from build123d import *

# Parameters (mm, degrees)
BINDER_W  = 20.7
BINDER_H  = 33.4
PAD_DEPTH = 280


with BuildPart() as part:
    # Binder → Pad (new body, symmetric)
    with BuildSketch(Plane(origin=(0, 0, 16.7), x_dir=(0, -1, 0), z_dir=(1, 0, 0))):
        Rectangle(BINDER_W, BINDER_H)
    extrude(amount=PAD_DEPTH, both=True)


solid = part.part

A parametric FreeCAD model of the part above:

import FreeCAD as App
import Part
import Sketcher
from FreeCAD import Vector
Q = App.Units.Quantity


def add_polygon(sketch, points):
    """Adds a closed chain of lines whose ends are joined by coincident constraints."""
    first, n = sketch.GeometryCount, len(points)
    for a, b in zip(points, points[1:] + points[:1]):
        sketch.addGeometry(Part.LineSegment(App.Vector(*a, 0), App.Vector(*b, 0)), False)
    for i in range(n):
        sketch.addConstraint(Sketcher.Constraint("Coincident", first + i, 2, first + (i + 1) % n, 1))

doc = App.newDocument("Part")
body = doc.addObject("PartDesign::Body", "Body")

sketch1 = body.newObject("Sketcher::SketchObject", "Sketch")
sketch1.AttachmentSupport = (doc.getObject("YZ_Plane"), [""])
sketch1.MapMode = "FlatFace"
add_polygon(sketch1, [(10, 0), (10, 33), (-10, 33), (-10, 0)])
sketch1.addConstraint([
    Sketcher.Constraint("Vertical", 0),
    Sketcher.Constraint("Horizontal", 1),
    Sketcher.Constraint("Vertical", 2),
    Sketcher.Constraint("Horizontal", 3),
    Sketcher.Constraint("Symmetric", 2, 2, 3, 2, -1, 1),
    Sketcher.Constraint("DistanceX", 1, 2, 1, 1, Q("20.7 mm")),
    Sketcher.Constraint("DistanceY", 0, 1, 0, 2, Q("33.4 mm")),
])
pad1 = body.newObject("PartDesign::Pad", "Pad")
pad1.Profile = sketch1
pad1.Length = 560
pad1.Midplane = True

doc.recompute()
